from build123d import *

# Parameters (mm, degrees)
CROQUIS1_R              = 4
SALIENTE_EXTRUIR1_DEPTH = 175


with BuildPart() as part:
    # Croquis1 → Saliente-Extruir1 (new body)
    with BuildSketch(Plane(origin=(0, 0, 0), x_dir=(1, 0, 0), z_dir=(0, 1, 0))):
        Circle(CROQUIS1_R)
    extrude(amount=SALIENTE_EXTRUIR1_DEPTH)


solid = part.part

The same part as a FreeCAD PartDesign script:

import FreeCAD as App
import Part
import Sketcher

doc = App.newDocument("Part")
body = doc.addObject("PartDesign::Body", "Body")

# Sketch on XZ plane
sketch1 = body.newObject("Sketcher::SketchObject", "Sketch")
sketch1.AttachmentSupport = (doc.getObject("XZ_Plane"), [""])
sketch1.MapMode = "FlatFace"
sketch1.addGeometry(Part.Circle(App.Vector(0, 0, 0), App.Vector(0, 0, 1), 4), False)
sketch1.addConstraint([
    Sketcher.Constraint("Coincident", 0, 3, -1, 1),
    Sketcher.Constraint("Diameter", 0, 8.0),
])
pad1 = body.newObject("PartDesign::Pad", "Pad")
pad1.Profile = sketch1
pad1.Length = 175
pad1.Reversed = True

doc.recompute()
